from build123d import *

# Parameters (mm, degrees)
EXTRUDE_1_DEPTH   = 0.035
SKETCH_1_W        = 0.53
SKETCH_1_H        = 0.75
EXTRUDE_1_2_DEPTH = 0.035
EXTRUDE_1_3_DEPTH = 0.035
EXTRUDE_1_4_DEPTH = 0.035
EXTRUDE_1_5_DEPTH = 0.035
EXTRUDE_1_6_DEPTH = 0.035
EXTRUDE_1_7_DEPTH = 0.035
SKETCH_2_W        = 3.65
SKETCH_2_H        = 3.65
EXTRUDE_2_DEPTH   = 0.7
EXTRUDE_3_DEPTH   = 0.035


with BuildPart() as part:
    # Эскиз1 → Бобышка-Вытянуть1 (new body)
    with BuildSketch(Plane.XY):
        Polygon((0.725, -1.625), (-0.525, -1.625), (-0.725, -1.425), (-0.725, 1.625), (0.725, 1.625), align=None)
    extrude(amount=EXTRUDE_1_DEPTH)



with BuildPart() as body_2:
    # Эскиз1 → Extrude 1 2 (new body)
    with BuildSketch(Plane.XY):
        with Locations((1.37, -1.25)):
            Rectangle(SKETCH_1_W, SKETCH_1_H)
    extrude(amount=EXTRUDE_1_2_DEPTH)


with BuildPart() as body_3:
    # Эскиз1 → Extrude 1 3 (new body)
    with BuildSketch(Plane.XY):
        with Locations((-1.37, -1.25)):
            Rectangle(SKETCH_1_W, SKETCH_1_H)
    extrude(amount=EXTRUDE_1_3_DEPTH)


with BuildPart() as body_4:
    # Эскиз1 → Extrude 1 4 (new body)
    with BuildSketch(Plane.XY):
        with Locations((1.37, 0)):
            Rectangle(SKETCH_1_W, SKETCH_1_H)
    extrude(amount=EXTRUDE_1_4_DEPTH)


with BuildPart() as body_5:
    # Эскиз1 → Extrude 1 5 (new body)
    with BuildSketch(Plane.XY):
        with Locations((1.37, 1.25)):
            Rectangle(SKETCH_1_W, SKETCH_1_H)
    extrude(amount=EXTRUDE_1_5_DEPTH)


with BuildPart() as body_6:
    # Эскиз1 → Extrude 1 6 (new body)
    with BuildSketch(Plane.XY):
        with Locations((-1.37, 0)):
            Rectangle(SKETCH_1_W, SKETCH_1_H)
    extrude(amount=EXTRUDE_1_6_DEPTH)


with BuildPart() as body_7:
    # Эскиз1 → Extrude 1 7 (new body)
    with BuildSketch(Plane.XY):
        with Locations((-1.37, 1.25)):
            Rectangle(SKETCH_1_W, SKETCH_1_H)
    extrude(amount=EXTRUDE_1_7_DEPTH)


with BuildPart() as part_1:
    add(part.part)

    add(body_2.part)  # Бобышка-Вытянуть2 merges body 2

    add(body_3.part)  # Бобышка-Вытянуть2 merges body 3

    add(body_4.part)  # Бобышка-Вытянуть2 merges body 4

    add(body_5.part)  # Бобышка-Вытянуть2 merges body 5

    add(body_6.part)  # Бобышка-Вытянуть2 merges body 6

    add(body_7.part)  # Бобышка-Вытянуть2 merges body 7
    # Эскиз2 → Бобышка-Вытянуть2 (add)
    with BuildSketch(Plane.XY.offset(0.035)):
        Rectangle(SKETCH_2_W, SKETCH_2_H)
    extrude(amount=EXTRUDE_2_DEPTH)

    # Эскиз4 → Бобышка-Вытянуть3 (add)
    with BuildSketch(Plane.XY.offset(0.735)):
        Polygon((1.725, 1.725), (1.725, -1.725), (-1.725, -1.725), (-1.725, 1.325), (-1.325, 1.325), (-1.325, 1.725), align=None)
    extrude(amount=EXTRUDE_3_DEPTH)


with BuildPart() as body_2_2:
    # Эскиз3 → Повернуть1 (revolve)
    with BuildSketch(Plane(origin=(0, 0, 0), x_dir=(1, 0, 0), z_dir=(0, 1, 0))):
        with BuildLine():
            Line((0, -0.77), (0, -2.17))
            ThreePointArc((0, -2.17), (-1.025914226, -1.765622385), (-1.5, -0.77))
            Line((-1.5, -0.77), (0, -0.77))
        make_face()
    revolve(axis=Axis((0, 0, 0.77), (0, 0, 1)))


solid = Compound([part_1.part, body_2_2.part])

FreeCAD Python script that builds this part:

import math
import FreeCAD as App
import Part
import Sketcher
from FreeCAD import Vector
Q = App.Units.Quantity

doc = App.newDocument("Part")
body = doc.addObject("PartDesign::Body", "Body")

sketch1 = body.newObject("Sketcher::SketchObject", "Sketch")
sketch1.AttachmentSupport = (doc.getObject("XY_Plane"), [""])
sketch1.MapMode = "FlatFace"
sketch1.addGeometry(Part.LineSegment(Vector(-0.53, -1.62, 0), Vector(0.72, -1.62, 0)), False)
sketch1.addGeometry(Part.LineSegment(Vector(0.72, -1.62, 0), Vector(0.72, 1.62, 0)), False)
sketch1.addGeometry(Part.LineSegment(Vector(0.72, 1.62, 0), Vector(-0.72, 1.62, 0)), False)
sketch1.addGeometry(Part.LineSegment(Vector(-0.72, 1.62, 0), Vector(-0.72, -1.43, 0)), False)
sketch1.addGeometry(Part.LineSegment(Vector(-0.72, -1.43, 0), Vector(-0.53, -1.62, 0)), False)
sketch1.addConstraint(Sketcher.Constraint("Coincident", 0, 2, 1, 1))
sketch1.addConstraint(Sketcher.Constraint("Coincident", 1, 2, 2, 1))
sketch1.addConstraint(Sketcher.Constraint("Coincident", 2, 2, 3, 1))
sketch1.addConstraint(Sketcher.Constraint("Coincident", 3, 2, 4, 1))
sketch1.addConstraint(Sketcher.Constraint("Coincident", 4, 2, 0, 1))
sketch1.addConstraint(Sketcher.Constraint("Horizontal", 0))
sketch1.addConstraint(Sketcher.Constraint("Vertical", 1))
sketch1.addConstraint(Sketcher.Constraint("Horizontal", 2))
sketch1.addConstraint(Sketcher.Constraint("Vertical", 3))
sketch1.addConstraint(Sketcher.Constraint("Symmetric", 0, 2, 2, 2, -1, 1))
sketch1.addConstraint(Sketcher.Constraint("Angle", 4, Q("-45 deg")))
sketch1.addConstraint(Sketcher.Constraint("DistanceX", 0, 1, 0, 2, 1.25))
sketch1.addConstraint(Sketcher.Constraint("DistanceX", 2, 2, 2, 1, 1.45))
sketch1.addConstraint(Sketcher.Constraint("DistanceY", 1, 1, 1, 2, 3.25))
pad1 = body.newObject("PartDesign::Pad", "Pad")
pad1.Profile = sketch1
pad1.Length = 0.035
body2 = doc.addObject("PartDesign::Body", "Body001")

sketch2 = body2.newObject("Sketcher::SketchObject", "Sketch001")
sketch2.AttachmentSupport = (doc.getObject("XY_Plane001"), [""])
sketch2.MapMode = "FlatFace"
sketch2.addGeometry(Part.LineSegment(Vector(1.1, -0.9, 0), Vector(1.1, -1.6, 0)), False)
sketch2.addGeometry(Part.LineSegment(Vector(1.1, -1.6, 0), Vector(1.6, -1.6, 0)), False)
sketch2.addGeometry(Part.LineSegment(Vector(1.6, -1.6, 0), Vector(1.6, -0.9, 0)), False)
sketch2.addGeometry(Part.LineSegment(Vector(1.6, -0.9, 0), Vector(1.1, -0.9, 0)), False)
sketch2.addConstraint(Sketcher.Constraint("Coincident", 0, 2, 1, 1))
sketch2.addConstraint(Sketcher.Constraint("Coincident", 1, 2, 2, 1))
sketch2.addConstraint(Sketcher.Constraint("Coincident", 2, 2, 3, 1))
sketch2.addConstraint(Sketcher.Constraint("Coincident", 3, 2, 0, 1))
sketch2.addConstraint(Sketcher.Constraint("Vertical", 0))
sketch2.addConstraint(Sketcher.Constraint("Horizontal", 1))
sketch2.addConstraint(Sketcher.Constraint("Vertical", 2))
sketch2.addConstraint(Sketcher.Constraint("Horizontal", 3))
sketch2.addConstraint(Sketcher.Constraint("DistanceX", 1, 1, 1, 2, 0.53))
sketch2.addConstraint(Sketcher.Constraint("DistanceY", 0, 2, 0, 1, 0.75))
sketch2.addConstraint(Sketcher.Constraint("DistanceX", -1, 1, 0, 2, 1.105))
sketch2.addConstraint(Sketcher.Constraint("DistanceY", 0, 2, -1, 1, 1.625))
pad2 = body2.newObject("PartDesign::Pad", "Pad001")
pad2.Profile = sketch2
pad2.Length = 0.035
body3 = doc.addObject("PartDesign::Body", "Body002")

sketch3 = body3.newObject("Sketcher::SketchObject", "Sketch002")
sketch3.AttachmentSupport = (doc.getObject("XY_Plane002"), [""])
sketch3.MapMode = "FlatFace"
sketch3.addGeometry(Part.LineSegment(Vector(-1.6, -0.9, 0), Vector(-1.6, -1.6, 0)), False)
sketch3.addGeometry(Part.LineSegment(Vector(-1.6, -1.6, 0), Vector(-1.1, -1.6, 0)), False)
sketch3.addGeometry(Part.LineSegment(Vector(-1.1, -1.6, 0), Vector(-1.1, -0.9, 0)), False)
sketch3.addGeometry(Part.LineSegment(Vector(-1.1, -0.9, 0), Vector(-1.6, -0.9, 0)), False)
sketch3.addConstraint(Sketcher.Constraint("Coincident", 0, 2, 1, 1))
sketch3.addConstraint(Sketcher.Constraint("Coincident", 1, 2, 2, 1))
sketch3.addConstraint(Sketcher.Constraint("Coincident", 2, 2, 3, 1))
sketch3.addConstraint(Sketcher.Constraint("Coincident", 3, 2, 0, 1))
sketch3.addConstraint(Sketcher.Constraint("Vertical", 0))
sketch3.addConstraint(Sketcher.Constraint("Horizontal", 1))
sketch3.addConstraint(Sketcher.Constraint("Vertical", 2))
sketch3.addConstraint(Sketcher.Constraint("Horizontal", 3))
sketch3.addConstraint(Sketcher.Constraint("DistanceX", 1, 1, 1, 2, 0.53))
sketch3.addConstraint(Sketcher.Constraint("DistanceY", 0, 2, 0, 1, 0.75))
sketch3.addConstraint(Sketcher.Constraint("DistanceX", 0, 2, -1, 1, 1.635))
sketch3.addConstraint(Sketcher.Constraint("DistanceY", 0, 2, -1, 1, 1.625))
pad3 = body3.newObject("PartDesign::Pad", "Pad002")
pad3.Profile = sketch3
pad3.Length = 0.035
body4 = doc.addObject("PartDesign::Body", "Body003")

sketch4 = body4.newObject("Sketcher::SketchObject", "Sketch003")
sketch4.AttachmentSupport = (doc.getObject("XY_Plane003"), [""])
sketch4.MapMode = "FlatFace"
sketch4.addGeometry(Part.LineSegment(Vector(1.1, 0.4, 0), Vector(1.1, -0.4, 0)), False)
sketch4.addGeometry(Part.LineSegment(Vector(1.1, -0.4, 0), Vector(1.6, -0.4, 0)), False)
sketch4.addGeometry(Part.LineSegment(Vector(1.6, -0.4, 0), Vector(1.6, 0.4, 0)), False)
sketch4.addGeometry(Part.LineSegment(Vector(1.6, 0.4, 0), Vector(1.1, 0.4, 0)), False)
sketch4.addConstraint(Sketcher.Constraint("Coincident", 0, 2, 1, 1))
sketch4.addConstraint(Sketcher.Constraint("Coincident", 1, 2, 2, 1))
sketch4.addConstraint(Sketcher.Constraint("Coincident", 2, 2, 3, 1))
sketch4.addConstraint(Sketcher.Constraint("Coincident", 3, 2, 0, 1))
sketch4.addConstraint(Sketcher.Constraint("Vertical", 0))
sketch4.addConstraint(Sketcher.Constraint("Horizontal", 1))
sketch4.addConstraint(Sketcher.Constraint("Vertical", 2))
sketch4.addConstraint(Sketcher.Constraint("Horizontal", 3))
sketch4.addConstraint(Sketcher.Constraint("DistanceX", 1, 1, 1, 2, 0.53))
sketch4.addConstraint(Sketcher.Constraint("DistanceY", 0, 2, 0, 1, 0.75))
sketch4.addConstraint(Sketcher.Constraint("DistanceX", -1, 1, 0, 2, 1.105))
sketch4.addConstraint(Sketcher.Constraint("DistanceY", 0, 2, -1, 1, 0.375))
pad4 = body4.newObject("PartDesign::Pad", "Pad003")
pad4.Profile = sketch4
pad4.Length = 0.035
body5 = doc.addObject("PartDesign::Body", "Body004")

sketch5 = body5.newObject("Sketcher::SketchObject", "Sketch004")
sketch5.AttachmentSupport = (doc.getObject("XY_Plane004"), [""])
sketch5.MapMode = "FlatFace"
sketch5.addGeometry(Part.LineSegment(Vector(1.1, 1.6, 0), Vector(1.1, 0.9, 0)), False)
sketch5.addGeometry(Part.LineSegment(Vector(1.1, 0.9, 0), Vector(1.6, 0.9, 0)), False)
sketch5.addGeometry(Part.LineSegment(Vector(1.6, 0.9, 0), Vector(1.6, 1.6, 0)), False)
sketch5.addGeometry(Part.LineSegment(Vector(1.6, 1.6, 0), Vector(1.1, 1.6, 0)), False)
sketch5.addConstraint(Sketcher.Constraint("Coincident", 0, 2, 1, 1))
sketch5.addConstraint(Sketcher.Constraint("Coincident", 1, 2, 2, 1))
sketch5.addConstraint(Sketcher.Constraint("Coincident", 2, 2, 3, 1))
sketch5.addConstraint(Sketcher.Constraint("Coincident", 3, 2, 0, 1))
sketch5.addConstraint(Sketcher.Constraint("Vertical", 0))
sketch5.addConstraint(Sketcher.Constraint("Horizontal", 1))
sketch5.addConstraint(Sketcher.Constraint("Vertical", 2))
sketch5.addConstraint(Sketcher.Constraint("Horizontal", 3))
sketch5.addConstraint(Sketcher.Constraint("DistanceX", 1, 1, 1, 2, 0.53))
sketch5.addConstraint(Sketcher.Constraint("DistanceY", 0, 2, 0, 1, 0.75))
sketch5.addConstraint(Sketcher.Constraint("DistanceX", -1, 1, 0, 2, 1.105))
sketch5.addConstraint(Sketcher.Constraint("DistanceY", -1, 1, 0, 2, 0.875))
pad5 = body5.newObject("PartDesign::Pad", "Pad004")
pad5.Profile = sketch5
pad5.Length = 0.035
body6 = doc.addObject("PartDesign::Body", "Body005")

sketch6 = body6.newObject("Sketcher::SketchObject", "Sketch005")
sketch6.AttachmentSupport = (doc.getObject("XY_Plane005"), [""])
sketch6.MapMode = "FlatFace"
sketch6.addGeometry(Part.LineSegment(Vector(-1.6, 0.4, 0), Vector(-1.6, -0.4, 0)), False)
sketch6.addGeometry(Part.LineSegment(Vector(-1.6, -0.4, 0), Vector(-1.1, -0.4, 0)), False)
sketch6.addGeometry(Part.LineSegment(Vector(-1.1, -0.4, 0), Vector(-1.1, 0.4, 0)), False)
sketch6.addGeometry(Part.LineSegment(Vector(-1.1, 0.4, 0), Vector(-1.6, 0.4, 0)), False)
sketch6.addConstraint(Sketcher.Constraint("Coincident", 0, 2, 1, 1))
sketch6.addConstraint(Sketcher.Constraint("Coincident", 1, 2, 2, 1))
sketch6.addConstraint(Sketcher.Constraint("Coincident", 2, 2, 3, 1))
sketch6.addConstraint(Sketcher.Constraint("Coincident", 3, 2, 0, 1))
sketch6.addConstraint(Sketcher.Constraint("Vertical", 0))
sketch6.addConstraint(Sketcher.Constraint("Horizontal", 1))
sketch6.addConstraint(Sketcher.Constraint("Vertical", 2))
sketch6.addConstraint(Sketcher.Constraint("Horizontal", 3))
sketch6.addConstraint(Sketcher.Constraint("DistanceX", 1, 1, 1, 2, 0.53))
sketch6.addConstraint(Sketcher.Constraint("DistanceY", 0, 2, 0, 1, 0.75))
sketch6.addConstraint(Sketcher.Constraint("DistanceX", 0, 2, -1, 1, 1.635))
sketch6.addConstraint(Sketcher.Constraint("DistanceY", 0, 2, -1, 1, 0.375))
pad6 = body6.newObject("PartDesign::Pad", "Pad005")
pad6.Profile = sketch6
pad6.Length = 0.035
body7 = doc.addObject("PartDesign::Body", "Body006")

sketch7 = body7.newObject("Sketcher::SketchObject", "Sketch006")
sketch7.AttachmentSupport = (doc.getObject("XY_Plane006"), [""])
sketch7.MapMode = "FlatFace"
sketch7.addGeometry(Part.LineSegment(Vector(-1.6, 1.6, 0), Vector(-1.6, 0.9, 0)), False)
sketch7.addGeometry(Part.LineSegment(Vector(-1.6, 0.9, 0), Vector(-1.1, 0.9, 0)), False)
sketch7.addGeometry(Part.LineSegment(Vector(-1.1, 0.9, 0), Vector(-1.1, 1.6, 0)), False)
sketch7.addGeometry(Part.LineSegment(Vector(-1.1, 1.6, 0), Vector(-1.6, 1.6, 0)), False)
sketch7.addConstraint(Sketcher.Constraint("Coincident", 0, 2, 1, 1))
sketch7.addConstraint(Sketcher.Constraint("Coincident", 1, 2, 2, 1))
sketch7.addConstraint(Sketcher.Constraint("Coincident", 2, 2, 3, 1))
sketch7.addConstraint(Sketcher.Constraint("Coincident", 3, 2, 0, 1))
sketch7.addConstraint(Sketcher.Constraint("Vertical", 0))
sketch7.addConstraint(Sketcher.Constraint("Horizontal", 1))
sketch7.addConstraint(Sketcher.Constraint("Vertical", 2))
sketch7.addConstraint(Sketcher.Constraint("Horizontal", 3))
sketch7.addConstraint(Sketcher.Constraint("DistanceX", 1, 1, 1, 2, 0.53))
sketch7.addConstraint(Sketcher.Constraint("DistanceY", 0, 2, 0, 1, 0.75))
sketch7.addConstraint(Sketcher.Constraint("DistanceX", 0, 2, -1, 1, 1.635))
sketch7.addConstraint(Sketcher.Constraint("DistanceY", -1, 1, 0, 2, 0.875))
pad7 = body7.newObject("PartDesign::Pad", "Pad006")
pad7.Profile = sketch7
pad7.Length = 0.035
body.AllowCompound = True
doc.recompute()

boolean = body.newObject("PartDesign::Boolean", "Boolean")
boolean.Type = "Fuse"
boolean.addObjects([body2])
doc.recompute()

boolean2 = body.newObject("PartDesign::Boolean", "Boolean001")
boolean2.Type = "Fuse"
boolean2.addObjects([body3])
doc.recompute()

boolean3 = body.newObject("PartDesign::Boolean", "Boolean002")
boolean3.Type = "Fuse"
boolean3.addObjects([body4])
doc.recompute()

boolean4 = body.newObject("PartDesign::Boolean", "Boolean003")
boolean4.Type = "Fuse"
boolean4.addObjects([body5])
doc.recompute()

boolean5 = body.newObject("PartDesign::Boolean", "Boolean004")
boolean5.Type = "Fuse"
boolean5.addObjects([body6])
doc.recompute()

boolean6 = body.newObject("PartDesign::Boolean", "Boolean005")
boolean6.Type = "Fuse"
boolean6.addObjects([body7])

sketch8 = body.newObject("Sketcher::SketchObject", "Sketch007")
sketch8.AttachmentSupport = (doc.getObject("XY_Plane"), [""])
sketch8.MapMode = "FlatFace"
sketch8.AttachmentOffset = App.Placement(Vector(0, 0, 0.035), App.Rotation())
sketch8.addGeometry(Part.LineSegment(Vector(-1.8, 1.8, 0), Vector(-1.8, -1.8, 0)), False)
sketch8.addGeometry(Part.LineSegment(Vector(-1.8, -1.8, 0), Vector(1.8, -1.8, 0)), False)
sketch8.addGeometry(Part.LineSegment(Vector(1.8, -1.8, 0), Vector(1.8, 1.8, 0)), False)
sketch8.addGeometry(Part.LineSegment(Vector(1.8, 1.8, 0), Vector(-1.8, 1.8, 0)), False)
sketch8.addConstraint(Sketcher.Constraint("Coincident", 0, 2, 1, 1))
sketch8.addConstraint(Sketcher.Constraint("Coincident", 1, 2, 2, 1))
sketch8.addConstraint(Sketcher.Constraint("Coincident", 2, 2, 3, 1))
sketch8.addConstraint(Sketcher.Constraint("Coincident", 3, 2, 0, 1))
sketch8.addConstraint(Sketcher.Constraint("Vertical", 0))
sketch8.addConstraint(Sketcher.Constraint("Horizontal", 1))
sketch8.addConstraint(Sketcher.Constraint("Vertical", 2))
sketch8.addConstraint(Sketcher.Constraint("Horizontal", 3))
sketch8.addConstraint(Sketcher.Constraint("Symmetric", 0, 2, 2, 2, -1, 1))
sketch8.addConstraint(Sketcher.Constraint("Equal", 3, 0))
sketch8.addConstraint(Sketcher.Constraint("DistanceX", 1, 1, 1, 2, 3.65))
pad8 = body.newObject("PartDesign::Pad", "Pad007")
pad8.Profile = sketch8
pad8.Length = 0.7

sketch9 = body.newObject("Sketcher::SketchObject", "Sketch008")
sketch9.AttachmentSupport = (doc.getObject("XY_Plane"), [""])
sketch9.MapMode = "FlatFace"
sketch9.AttachmentOffset = App.Placement(Vector(0, 0, 0.735), App.Rotation())
sketch9.addGeometry(Part.LineSegment(Vector(1.73, -1.73, 0), Vector(1.73, 1.73, 0)), False)
sketch9.addGeometry(Part.LineSegment(Vector(1.73, 1.73, 0), Vector(-1.32, 1.73, 0)), False)
sketch9.addGeometry(Part.LineSegment(Vector(-1.32, 1.73, 0), Vector(-1.32, 1.32, 0)), False)
sketch9.addGeometry(Part.LineSegment(Vector(-1.32, 1.32, 0), Vector(-1.73, 1.32, 0)), False)
sketch9.addGeometry(Part.LineSegment(Vector(-1.73, 1.32, 0), Vector(-1.73, -1.73, 0)), False)
sketch9.addGeometry(Part.LineSegment(Vector(-1.73, -1.73, 0), Vector(1.73, -1.73, 0)), False)
sketch9.addConstraint(Sketcher.Constraint("Coincident", 0, 2, 1, 1))
sketch9.addConstraint(Sketcher.Constraint("Coincident", 1, 2, 2, 1))
sketch9.addConstraint(Sketcher.Constraint("Coincident", 2, 2, 3, 1))
sketch9.addConstraint(Sketcher.Constraint("Coincident", 3, 2, 4, 1))
sketch9.addConstraint(Sketcher.Constraint("Coincident", 4, 2, 5, 1))
sketch9.addConstraint(Sketcher.Constraint("Coincident", 5, 2, 0, 1))
sketch9.addConstraint(Sketcher.Constraint("Vertical", 0))
sketch9.addConstraint(Sketcher.Constraint("Horizontal", 1))
sketch9.addConstraint(Sketcher.Constraint("Vertical", 2))
sketch9.addConstraint(Sketcher.Constraint("Horizontal", 3))
sketch9.addConstraint(Sketcher.Constraint("Vertical", 4))
sketch9.addConstraint(Sketcher.Constraint("Horizontal", 5))
sketch9.addConstraint(Sketcher.Constraint("Symmetric", 0, 2, 4, 2, -1, 1))
sketch9.addConstraint(Sketcher.Constraint("Equal", 5, 0))
sketch9.addConstraint(Sketcher.Constraint("Equal", 3, 2))
sketch9.addConstraint(Sketcher.Constraint("DistanceX", 3, 2, 3, 1, 0.4))
sketch9.addConstraint(Sketcher.Constraint("DistanceX", 1, 2, 1, 1, 3.05))
pad9 = body.newObject("PartDesign::Pad", "Pad008")
pad9.Profile = sketch9
pad9.Length = 0.035
body8 = doc.addObject("PartDesign::Body", "Body007")

sketch10 = body8.newObject("Sketcher::SketchObject", "Sketch009")
sketch10.AttachmentSupport = (doc.getObject("XZ_Plane007"), [""])
sketch10.MapMode = "FlatFace"
sketch10.addGeometry(Part.LineSegment(Vector(0, 2.2, 0), Vector(0, 0.8, 0)), False)
sketch10.addGeometry(Part.LineSegment(Vector(0, 0.8, 0), Vector(-1.5, 0.8, 0)), False)
sketch10.addGeometry(Part.ArcOfCircle(Part.Circle(Vector(0, 0.7, 0), Vector(0, 0, 1), 1.5), math.radians(90), math.radians(176)), False)
sketch10.addConstraint(Sketcher.Constraint("Coincident", 0, 2, 1, 1))
sketch10.addConstraint(Sketcher.Constraint("Coincident", 1, 2, 2, 2))
sketch10.addConstraint(Sketcher.Constraint("Coincident", 2, 1, 0, 1))
sketch10.addConstraint(Sketcher.Constraint("Vertical", 0))
sketch10.addConstraint(Sketcher.Constraint("Horizontal", 1))
sketch10.addConstraint(Sketcher.Constraint("PointOnObject", 2, 3, -2))
sketch10.addConstraint(Sketcher.Constraint("PointOnObject", 0, 2, -2))
sketch10.addConstraint(Sketcher.Constraint("DistanceX", 1, 2, 1, 1, 1.5))
sketch10.addConstraint(Sketcher.Constraint("DistanceY", 0, 2, 0, 1, 1.4))
sketch10.addConstraint(Sketcher.Constraint("DistanceY", -1, 1, 0, 2, 0.77))
revolution = body8.newObject("PartDesign::Revolution", "Revolution")
revolution.Profile = sketch10
revolution.ReferenceAxis = (sketch10, ["V_Axis"])
revolution.Angle = 360

doc.recompute()
